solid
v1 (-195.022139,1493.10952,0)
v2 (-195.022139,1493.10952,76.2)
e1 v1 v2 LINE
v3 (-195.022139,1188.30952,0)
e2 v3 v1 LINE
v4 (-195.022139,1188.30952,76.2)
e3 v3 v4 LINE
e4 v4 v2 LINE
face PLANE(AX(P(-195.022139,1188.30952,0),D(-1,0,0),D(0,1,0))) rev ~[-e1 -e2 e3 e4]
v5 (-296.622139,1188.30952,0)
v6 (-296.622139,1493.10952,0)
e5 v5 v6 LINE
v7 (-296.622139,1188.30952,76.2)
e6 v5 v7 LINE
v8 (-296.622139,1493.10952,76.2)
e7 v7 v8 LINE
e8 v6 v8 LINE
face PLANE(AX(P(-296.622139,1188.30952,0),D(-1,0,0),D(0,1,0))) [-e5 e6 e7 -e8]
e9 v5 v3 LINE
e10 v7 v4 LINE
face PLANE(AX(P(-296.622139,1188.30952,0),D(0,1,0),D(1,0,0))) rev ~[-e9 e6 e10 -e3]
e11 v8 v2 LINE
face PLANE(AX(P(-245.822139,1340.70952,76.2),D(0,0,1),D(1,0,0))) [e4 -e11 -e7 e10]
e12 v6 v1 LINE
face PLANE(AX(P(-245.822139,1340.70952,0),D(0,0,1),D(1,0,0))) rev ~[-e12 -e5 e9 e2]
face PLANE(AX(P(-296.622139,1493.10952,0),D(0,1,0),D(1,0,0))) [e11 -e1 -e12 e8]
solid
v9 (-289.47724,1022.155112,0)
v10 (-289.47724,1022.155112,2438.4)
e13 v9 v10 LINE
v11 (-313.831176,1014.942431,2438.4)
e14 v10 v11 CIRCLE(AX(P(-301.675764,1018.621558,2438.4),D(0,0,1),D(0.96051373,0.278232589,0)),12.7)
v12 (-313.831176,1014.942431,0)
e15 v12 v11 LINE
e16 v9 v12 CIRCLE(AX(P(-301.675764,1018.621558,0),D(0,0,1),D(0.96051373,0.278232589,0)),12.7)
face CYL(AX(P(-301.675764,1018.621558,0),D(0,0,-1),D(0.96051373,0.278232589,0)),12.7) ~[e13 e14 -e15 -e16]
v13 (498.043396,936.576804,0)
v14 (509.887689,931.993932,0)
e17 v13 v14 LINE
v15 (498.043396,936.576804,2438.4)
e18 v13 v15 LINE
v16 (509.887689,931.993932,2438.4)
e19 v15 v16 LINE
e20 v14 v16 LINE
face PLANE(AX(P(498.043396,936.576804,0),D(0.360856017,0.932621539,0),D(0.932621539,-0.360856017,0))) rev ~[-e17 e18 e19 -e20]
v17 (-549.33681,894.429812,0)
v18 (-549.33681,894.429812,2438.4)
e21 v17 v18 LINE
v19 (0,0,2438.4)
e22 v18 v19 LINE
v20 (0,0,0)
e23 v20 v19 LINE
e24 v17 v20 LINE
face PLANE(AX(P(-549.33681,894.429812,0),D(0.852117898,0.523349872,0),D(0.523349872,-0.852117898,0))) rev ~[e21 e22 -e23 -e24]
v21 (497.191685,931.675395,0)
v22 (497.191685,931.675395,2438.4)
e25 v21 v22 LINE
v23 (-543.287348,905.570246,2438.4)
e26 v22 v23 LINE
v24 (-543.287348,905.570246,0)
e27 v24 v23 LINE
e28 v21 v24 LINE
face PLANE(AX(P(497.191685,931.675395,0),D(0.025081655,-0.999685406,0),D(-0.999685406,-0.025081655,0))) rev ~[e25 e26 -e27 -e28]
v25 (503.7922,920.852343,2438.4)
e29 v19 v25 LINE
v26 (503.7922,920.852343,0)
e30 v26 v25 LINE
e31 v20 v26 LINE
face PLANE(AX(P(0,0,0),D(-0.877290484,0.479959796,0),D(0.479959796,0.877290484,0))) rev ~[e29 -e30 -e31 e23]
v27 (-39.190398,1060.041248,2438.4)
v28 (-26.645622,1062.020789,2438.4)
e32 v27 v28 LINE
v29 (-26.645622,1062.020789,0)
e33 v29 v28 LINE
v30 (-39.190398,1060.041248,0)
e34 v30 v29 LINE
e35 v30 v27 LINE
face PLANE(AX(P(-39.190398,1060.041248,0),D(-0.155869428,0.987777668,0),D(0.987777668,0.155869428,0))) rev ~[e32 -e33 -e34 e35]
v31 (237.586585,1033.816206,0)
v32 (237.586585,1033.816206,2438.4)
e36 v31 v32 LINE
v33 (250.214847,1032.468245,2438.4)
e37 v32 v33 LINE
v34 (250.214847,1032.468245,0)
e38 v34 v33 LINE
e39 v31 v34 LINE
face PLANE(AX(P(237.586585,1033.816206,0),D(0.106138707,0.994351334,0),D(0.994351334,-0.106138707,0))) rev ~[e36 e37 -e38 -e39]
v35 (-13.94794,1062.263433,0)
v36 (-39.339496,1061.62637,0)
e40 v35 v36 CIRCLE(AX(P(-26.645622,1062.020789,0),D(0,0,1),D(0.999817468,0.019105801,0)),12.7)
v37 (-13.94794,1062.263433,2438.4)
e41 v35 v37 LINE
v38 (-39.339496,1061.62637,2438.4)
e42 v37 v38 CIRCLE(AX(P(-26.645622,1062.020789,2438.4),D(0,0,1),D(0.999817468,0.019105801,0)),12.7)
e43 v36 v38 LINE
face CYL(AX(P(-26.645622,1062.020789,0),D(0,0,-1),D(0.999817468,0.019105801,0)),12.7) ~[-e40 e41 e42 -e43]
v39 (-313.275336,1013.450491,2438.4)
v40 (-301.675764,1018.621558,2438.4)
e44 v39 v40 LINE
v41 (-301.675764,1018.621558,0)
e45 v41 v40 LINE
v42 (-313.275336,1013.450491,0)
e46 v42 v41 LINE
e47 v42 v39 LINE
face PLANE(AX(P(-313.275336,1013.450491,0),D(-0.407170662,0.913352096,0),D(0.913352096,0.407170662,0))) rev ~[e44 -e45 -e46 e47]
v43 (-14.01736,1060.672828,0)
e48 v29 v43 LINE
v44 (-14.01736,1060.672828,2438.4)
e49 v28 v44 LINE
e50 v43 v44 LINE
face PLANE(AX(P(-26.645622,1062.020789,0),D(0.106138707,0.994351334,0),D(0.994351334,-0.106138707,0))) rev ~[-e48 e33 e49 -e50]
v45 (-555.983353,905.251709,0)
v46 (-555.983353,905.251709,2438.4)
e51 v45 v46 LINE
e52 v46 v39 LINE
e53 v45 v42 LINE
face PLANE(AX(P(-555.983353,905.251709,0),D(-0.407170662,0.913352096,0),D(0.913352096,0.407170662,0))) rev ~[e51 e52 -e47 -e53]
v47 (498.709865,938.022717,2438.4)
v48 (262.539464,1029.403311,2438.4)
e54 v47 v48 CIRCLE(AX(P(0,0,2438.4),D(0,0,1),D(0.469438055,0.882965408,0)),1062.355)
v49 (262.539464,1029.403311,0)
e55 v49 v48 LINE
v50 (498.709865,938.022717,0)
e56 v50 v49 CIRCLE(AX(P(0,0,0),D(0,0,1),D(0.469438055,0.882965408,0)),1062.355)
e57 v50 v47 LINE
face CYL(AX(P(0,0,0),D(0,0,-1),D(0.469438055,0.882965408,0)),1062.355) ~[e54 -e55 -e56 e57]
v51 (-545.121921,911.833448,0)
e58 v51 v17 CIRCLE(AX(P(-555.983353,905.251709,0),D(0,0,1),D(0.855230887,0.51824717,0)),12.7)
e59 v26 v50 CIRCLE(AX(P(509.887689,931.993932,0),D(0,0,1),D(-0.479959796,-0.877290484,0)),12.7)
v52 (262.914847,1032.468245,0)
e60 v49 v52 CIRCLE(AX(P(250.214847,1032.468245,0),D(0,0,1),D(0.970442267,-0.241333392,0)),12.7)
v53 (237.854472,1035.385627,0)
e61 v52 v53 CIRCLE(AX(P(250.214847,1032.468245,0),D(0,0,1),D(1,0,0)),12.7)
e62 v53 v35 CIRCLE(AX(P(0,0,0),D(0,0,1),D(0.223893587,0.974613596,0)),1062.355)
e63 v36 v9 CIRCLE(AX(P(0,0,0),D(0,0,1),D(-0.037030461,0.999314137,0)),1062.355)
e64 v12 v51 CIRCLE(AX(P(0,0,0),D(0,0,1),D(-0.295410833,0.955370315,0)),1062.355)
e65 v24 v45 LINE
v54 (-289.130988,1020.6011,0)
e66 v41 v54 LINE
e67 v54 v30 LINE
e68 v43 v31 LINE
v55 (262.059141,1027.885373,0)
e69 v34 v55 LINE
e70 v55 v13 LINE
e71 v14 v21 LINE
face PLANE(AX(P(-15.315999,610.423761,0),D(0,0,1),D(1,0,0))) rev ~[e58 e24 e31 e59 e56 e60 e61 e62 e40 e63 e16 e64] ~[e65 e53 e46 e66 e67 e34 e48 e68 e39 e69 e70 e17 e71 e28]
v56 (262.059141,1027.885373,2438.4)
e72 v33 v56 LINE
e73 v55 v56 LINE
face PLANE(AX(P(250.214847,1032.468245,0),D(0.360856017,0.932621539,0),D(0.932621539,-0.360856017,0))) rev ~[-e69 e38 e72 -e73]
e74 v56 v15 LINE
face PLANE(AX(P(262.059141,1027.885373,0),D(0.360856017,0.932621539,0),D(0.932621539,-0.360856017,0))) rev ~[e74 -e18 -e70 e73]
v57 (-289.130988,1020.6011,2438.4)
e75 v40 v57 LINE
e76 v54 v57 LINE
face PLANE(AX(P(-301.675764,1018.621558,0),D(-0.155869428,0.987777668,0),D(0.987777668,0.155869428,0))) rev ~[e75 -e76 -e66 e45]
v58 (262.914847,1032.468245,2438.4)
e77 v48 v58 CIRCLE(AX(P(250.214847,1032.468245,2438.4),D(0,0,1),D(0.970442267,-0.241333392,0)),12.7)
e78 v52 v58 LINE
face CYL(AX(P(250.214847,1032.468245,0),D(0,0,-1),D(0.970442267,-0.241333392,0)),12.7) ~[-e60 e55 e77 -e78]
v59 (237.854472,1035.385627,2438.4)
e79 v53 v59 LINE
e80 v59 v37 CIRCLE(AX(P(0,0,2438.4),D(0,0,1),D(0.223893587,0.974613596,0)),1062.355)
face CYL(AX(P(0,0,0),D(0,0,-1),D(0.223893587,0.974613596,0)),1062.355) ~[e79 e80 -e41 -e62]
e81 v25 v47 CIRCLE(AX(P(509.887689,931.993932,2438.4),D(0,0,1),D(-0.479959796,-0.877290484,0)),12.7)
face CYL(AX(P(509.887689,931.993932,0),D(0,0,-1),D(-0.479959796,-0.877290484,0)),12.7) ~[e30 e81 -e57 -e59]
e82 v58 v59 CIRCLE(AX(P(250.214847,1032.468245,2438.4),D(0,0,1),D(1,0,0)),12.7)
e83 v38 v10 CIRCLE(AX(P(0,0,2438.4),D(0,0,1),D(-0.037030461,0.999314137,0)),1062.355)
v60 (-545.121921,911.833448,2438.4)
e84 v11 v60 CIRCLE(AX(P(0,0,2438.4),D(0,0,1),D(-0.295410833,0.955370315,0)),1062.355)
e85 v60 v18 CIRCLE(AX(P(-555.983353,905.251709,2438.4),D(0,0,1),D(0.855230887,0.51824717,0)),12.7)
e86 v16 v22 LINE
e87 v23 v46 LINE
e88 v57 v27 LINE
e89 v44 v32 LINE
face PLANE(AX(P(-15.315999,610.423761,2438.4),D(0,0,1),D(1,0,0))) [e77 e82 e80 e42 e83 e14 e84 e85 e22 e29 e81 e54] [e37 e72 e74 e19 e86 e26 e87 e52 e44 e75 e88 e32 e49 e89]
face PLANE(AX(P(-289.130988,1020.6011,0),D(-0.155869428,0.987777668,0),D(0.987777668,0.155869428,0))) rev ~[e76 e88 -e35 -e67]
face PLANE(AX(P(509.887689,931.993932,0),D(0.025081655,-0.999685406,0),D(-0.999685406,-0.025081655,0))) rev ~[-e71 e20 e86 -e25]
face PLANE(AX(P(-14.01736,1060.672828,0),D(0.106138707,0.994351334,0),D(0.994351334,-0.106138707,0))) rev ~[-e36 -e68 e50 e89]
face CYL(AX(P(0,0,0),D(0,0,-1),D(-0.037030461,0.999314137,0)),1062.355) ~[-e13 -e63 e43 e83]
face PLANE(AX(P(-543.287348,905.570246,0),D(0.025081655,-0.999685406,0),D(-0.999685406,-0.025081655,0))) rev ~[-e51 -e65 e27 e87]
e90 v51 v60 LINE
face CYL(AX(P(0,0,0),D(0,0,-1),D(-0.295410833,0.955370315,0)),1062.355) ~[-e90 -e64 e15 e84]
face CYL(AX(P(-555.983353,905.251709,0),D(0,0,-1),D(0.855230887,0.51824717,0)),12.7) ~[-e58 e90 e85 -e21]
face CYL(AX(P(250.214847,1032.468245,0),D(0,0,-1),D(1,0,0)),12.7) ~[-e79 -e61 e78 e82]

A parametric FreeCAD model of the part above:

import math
import FreeCAD as App
import Part
import Sketcher

V = App.Vector
Q = App.Units.Quantity

doc = App.newDocument("Part")
params = doc.addObject("Spreadsheet::Sheet", "Params")
for row, (alias, value) in enumerate([
    ("sketch1_radius", "0.5 in"),
    ("sketch1_radius2", "41.825 in"),
    ("sketch1_length", "0.5 in"),
    ("sketch1_length2", "41.325 in"),
    ("pad1_length", "96 in"),
    ("sketch2_width", "4 in"),
    ("sketch2_height", "12 in"),
    ("pad2_length", "3 in"),
], start=1):
    params.set(f"A{row}", alias)
    params.set(f"B{row}", "=" + value)
    params.setAlias(f"B{row}", alias)

body = doc.addObject("PartDesign::Body", "Body")

# Sketch on XY plane
sketch1 = body.newObject("Sketcher::SketchObject", "Sketch")
sketch1.AttachmentSupport = (doc.getObject("XY_Plane"), [""])
sketch1.MapMode = "FlatFace"
sketch1.addGeometry([
    Part.ArcOfCircle(Part.Circle(V(250.214847, 1032.468245, 0), V(0, 0, 1), 12.7), math.radians(0), math.radians(166.719699)),  # 0
    Part.ArcOfCircle(Part.Circle(V(0, 0, 0), V(0, 0, 1), 1062.355), math.radians(77.062174), math.radians(90.752273)),  # 1
    Part.ArcOfCircle(Part.Circle(V(-26.645622, 1062.020789, 0), V(0, 0, 1), 12.7), math.radians(1.094748), math.radians(181.779699)),  # 2
    Part.ArcOfCircle(Part.Circle(V(0, 0, 0), V(0, 0, 1), 1062.355), math.radians(92.122174), math.radians(105.812273)),  # 3
    Part.ArcOfCircle(Part.Circle(V(-301.675764, 1018.621558, 0), V(0, 0, 1), 12.7), math.radians(16.154748), math.radians(196.839699)),  # 4
    Part.ArcOfCircle(Part.Circle(V(0, 0, 0), V(0, 0, 1), 1062.355), math.radians(107.182174), math.radians(120.872273)),  # 5
    Part.ArcOfCircle(Part.Circle(V(-555.983353, 905.251709, 0), V(0, 0, 1), 12.7), math.radians(31.214748), math.radians(301.557224)),  # 6
    Part.LineSegment(V(-549.33681, 894.429812, 0), V(0, 0, 0)),  # 7
    Part.LineSegment(V(0, 0, 0), V(503.7922, 920.852343, 0)),  # 8
    Part.ArcOfCircle(Part.Circle(V(509.887689, 931.993932, 0), V(0, 0, 1), 12.7), math.radians(-118.682776), math.radians(151.659699)),  # 9
    Part.ArcOfCircle(Part.Circle(V(0, 0, 0), V(0, 0, 1), 1062.355), math.radians(62.002174), math.radians(75.692273)),  # 10
    Part.ArcOfCircle(Part.Circle(V(250.214847, 1032.468245, 0), V(0, 0, 1), 12.7), math.radians(-13.965252), math.radians(0)),  # 11
    Part.LineSegment(V(-14.01736, 1060.672828, 0), V(237.586585, 1033.816206, 0)),  # 12
    Part.LineSegment(V(237.586585, 1033.816206, 0), V(250.214847, 1032.468245, 0)),  # 13
    Part.LineSegment(V(250.214847, 1032.468245, 0), V(262.059141, 1027.885373, 0)),  # 14
    Part.LineSegment(V(262.059141, 1027.885373, 0), V(498.043396, 936.576804, 0)),  # 15
    Part.LineSegment(V(498.043396, 936.576804, 0), V(509.887689, 931.993932, 0)),  # 16
    Part.LineSegment(V(509.887689, 931.993932, 0), V(497.191685, 931.675395, 0)),  # 17
    Part.LineSegment(V(497.191685, 931.675395, 0), V(-543.287348, 905.570246, 0)),  # 18
    Part.LineSegment(V(-543.287348, 905.570246, 0), V(-555.983353, 905.251709, 0)),  # 19
    Part.LineSegment(V(-555.983353, 905.251709, 0), V(-313.275336, 1013.450491, 0)),  # 20
    Part.LineSegment(V(-313.275336, 1013.450491, 0), V(-301.675764, 1018.621558, 0)),  # 21
    Part.LineSegment(V(-301.675764, 1018.621558, 0), V(-289.130988, 1020.6011, 0)),  # 22
    Part.LineSegment(V(-289.130988, 1020.6011, 0), V(-39.190398, 1060.041248, 0)),  # 23
    Part.LineSegment(V(-39.190398, 1060.041248, 0), V(-26.645622, 1062.020789, 0)),  # 24
    Part.LineSegment(V(-26.645622, 1062.020789, 0), V(-14.01736, 1060.672828, 0)),  # 25
], False)
sketch1.addConstraint([
    Sketcher.Constraint("Coincident", 0, 2, 1, 1),
    Sketcher.Constraint("Coincident", 1, 2, 2, 1),
    Sketcher.Constraint("Coincident", 2, 2, 3, 1),
    Sketcher.Constraint("Coincident", 3, 2, 4, 1),
    Sketcher.Constraint("Coincident", 4, 2, 5, 1),
    Sketcher.Constraint("Coincident", 5, 2, 6, 1),
    Sketcher.Constraint("Coincident", 6, 2, 7, 1),
    Sketcher.Constraint("Coincident", 7, 2, 8, 1),
    Sketcher.Constraint("Coincident", 8, 2, 9, 1),
    Sketcher.Constraint("Coincident", 9, 2, 10, 1),
    Sketcher.Constraint("Coincident", 10, 2, 11, 1),
    Sketcher.Constraint("Tangent", 11, 2, 0, 1),
    Sketcher.Constraint("Coincident", 12, 2, 13, 1),
    Sketcher.Constraint("Coincident", 13, 2, 14, 1),
    Sketcher.Constraint("Coincident", 14, 2, 15, 1),
    Sketcher.Constraint("Coincident", 15, 2, 16, 1),
    Sketcher.Constraint("Coincident", 16, 2, 17, 1),
    Sketcher.Constraint("Coincident", 17, 2, 18, 1),
    Sketcher.Constraint("Coincident", 18, 2, 19, 1),
    Sketcher.Constraint("Coincident", 19, 2, 20, 1),
    Sketcher.Constraint("Coincident", 20, 2, 21, 1),
    Sketcher.Constraint("Coincident", 21, 2, 22, 1),
    Sketcher.Constraint("Coincident", 22, 2, 23, 1),
    Sketcher.Constraint("Coincident", 23, 2, 24, 1),
    Sketcher.Constraint("Coincident", 24, 2, 25, 1),
    Sketcher.Constraint("Coincident", 25, 2, 12, 1),
    Sketcher.Constraint("Coincident", 1, 3, -1, 1),
    Sketcher.Constraint("Coincident", 3, 3, -1, 1),
    Sketcher.Constraint("Coincident", 5, 3, -1, 1),
    Sketcher.Constraint("Coincident", 10, 3, -1, 1),
    Sketcher.Constraint("Coincident", 7, 2, -1, 1),
    Sketcher.Constraint("Coincident", 13, 2, 0, 3),
    Sketcher.Constraint("Coincident", 16, 2, 9, 3),
    Sketcher.Constraint("Coincident", 19, 2, 6, 3),
    Sketcher.Constraint("Coincident", 21, 2, 4, 3),
    Sketcher.Constraint("Coincident", 24, 2, 2, 3),
    Sketcher.Constraint("Equal", 0, 2),
    Sketcher.Constraint("Equal", 1, 3),
    Sketcher.Constraint("Equal", 2, 4),
    Sketcher.Constraint("Equal", 3, 5),
    Sketcher.Constraint("Equal", 4, 6),
    Sketcher.Constraint("Equal", 6, 9),
    Sketcher.Constraint("Equal", 5, 10),
    Sketcher.Constraint("Equal", 9, 11),
    Sketcher.Constraint("Parallel", 12, 13),
    Sketcher.Constraint("Parallel", 14, 15),
    Sketcher.Constraint("Parallel", 15, 16),
    Sketcher.Constraint("Parallel", 17, 18),
    Sketcher.Constraint("Parallel", 18, 19),
    Sketcher.Constraint("Parallel", 20, 21),
    Sketcher.Constraint("Parallel", 22, 23),
    Sketcher.Constraint("Parallel", 23, 24),
    Sketcher.Constraint("Parallel", 13, 25),
    Sketcher.Constraint("Horizontal", 0, 3, 11, 2),
    Sketcher.Constraint("Equal", 7, 8),
    Sketcher.Constraint("Equal", 13, 14),
    Sketcher.Constraint("Equal", 12, 15),
    Sketcher.Constraint("Equal", 14, 16),
    Sketcher.Constraint("Equal", 16, 17),
    Sketcher.Constraint("Equal", 17, 19),
    Sketcher.Constraint("Equal", 19, 21),
    Sketcher.Constraint("Equal", 21, 22),
    Sketcher.Constraint("Equal", 15, 23),
    Sketcher.Constraint("Equal", 22, 24),
    Sketcher.Constraint("Equal", 24, 25),
    Sketcher.Constraint("Radius", 0, Q("0.5 in")),
    Sketcher.Constraint("Radius", 1, Q("41.825 in")),
    Sketcher.Constraint("Distance", 13, Q("0.5 in")),
    Sketcher.Constraint("Distance", 7, Q("41.325 in")),
    Sketcher.Constraint("DistanceY", 0, 2, 2, 2, Q("1.0331001 in")),
    Sketcher.Constraint("DistanceX", -1, 1, 8, 2, 503.7922),
    Sketcher.Constraint("DistanceY", -1, 1, 22, 2, 1020.6011),
    Sketcher.Constraint("DistanceX", 23, 2, -1, 1, 39.190398),
    Sketcher.Constraint("DistanceX", 6, 3, 0, 3, 806.1982),
    Sketcher.Constraint("DistanceY", 8, 2, 0, 3, 111.615901),
    Sketcher.Constraint("DistanceY", -1, 1, 2, 3, 1062.020789),
    Sketcher.Constraint("DistanceX", 6, 2, -1, 1, 549.33681),
])
sketch1.setExpression("Constraints[65]", "Params.sketch1_radius")
sketch1.setExpression("Constraints[66]", "Params.sketch1_radius2")
sketch1.setExpression("Constraints[67]", "Params.sketch1_length")
sketch1.setExpression("Constraints[68]", "Params.sketch1_length2")
pad1 = body.newObject("PartDesign::Pad", "Pad")
pad1.Profile = sketch1
pad1.setExpression("Length", "Params.pad1_length")
body2 = doc.addObject("PartDesign::Body", "Body001")

# Sketch on XY plane
sketch2 = body2.newObject("Sketcher::SketchObject", "Sketch001")
sketch2.AttachmentSupport = (doc.getObject("XY_Plane001"), [""])
sketch2.MapMode = "FlatFace"
sketch2.addGeometry([
    Part.LineSegment(V(-296.622139, 1493.10952, 0), V(-296.622139, 1188.30952, 0)),
    Part.LineSegment(V(-296.622139, 1188.30952, 0), V(-195.022139, 1188.30952, 0)),
    Part.LineSegment(V(-195.022139, 1188.30952, 0), V(-195.022139, 1493.10952, 0)),
    Part.LineSegment(V(-195.022139, 1493.10952, 0), V(-296.622139, 1493.10952, 0)),
], False)
sketch2.addConstraint([
    Sketcher.Constraint("Coincident", 0, 2, 1, 1),
    Sketcher.Constraint("Coincident", 1, 2, 2, 1),
    Sketcher.Constraint("Coincident", 2, 2, 3, 1),
    Sketcher.Constraint("Coincident", 3, 2, 0, 1),
    Sketcher.Constraint("Vertical", 0),
    Sketcher.Constraint("Horizontal", 1),
    Sketcher.Constraint("Vertical", 2),
    Sketcher.Constraint("Horizontal", 3),
    Sketcher.Constraint("DistanceX", 1, 1, 1, 2, Q("4 in")),
    Sketcher.Constraint("DistanceY", 0, 2, 0, 1, Q("12 in")),
    Sketcher.Constraint("DistanceX", 0, 2, -1, 1, 296.622139),
    Sketcher.Constraint("DistanceY", -1, 1, 0, 2, 1188.30952),
])
sketch2.setExpression("Constraints[8]", "Params.sketch2_width")
sketch2.setExpression("Constraints[9]", "Params.sketch2_height")
pad2 = body2.newObject("PartDesign::Pad", "Pad001")
pad2.Profile = sketch2
pad2.setExpression("Length", "Params.pad2_length")

doc.recompute()
